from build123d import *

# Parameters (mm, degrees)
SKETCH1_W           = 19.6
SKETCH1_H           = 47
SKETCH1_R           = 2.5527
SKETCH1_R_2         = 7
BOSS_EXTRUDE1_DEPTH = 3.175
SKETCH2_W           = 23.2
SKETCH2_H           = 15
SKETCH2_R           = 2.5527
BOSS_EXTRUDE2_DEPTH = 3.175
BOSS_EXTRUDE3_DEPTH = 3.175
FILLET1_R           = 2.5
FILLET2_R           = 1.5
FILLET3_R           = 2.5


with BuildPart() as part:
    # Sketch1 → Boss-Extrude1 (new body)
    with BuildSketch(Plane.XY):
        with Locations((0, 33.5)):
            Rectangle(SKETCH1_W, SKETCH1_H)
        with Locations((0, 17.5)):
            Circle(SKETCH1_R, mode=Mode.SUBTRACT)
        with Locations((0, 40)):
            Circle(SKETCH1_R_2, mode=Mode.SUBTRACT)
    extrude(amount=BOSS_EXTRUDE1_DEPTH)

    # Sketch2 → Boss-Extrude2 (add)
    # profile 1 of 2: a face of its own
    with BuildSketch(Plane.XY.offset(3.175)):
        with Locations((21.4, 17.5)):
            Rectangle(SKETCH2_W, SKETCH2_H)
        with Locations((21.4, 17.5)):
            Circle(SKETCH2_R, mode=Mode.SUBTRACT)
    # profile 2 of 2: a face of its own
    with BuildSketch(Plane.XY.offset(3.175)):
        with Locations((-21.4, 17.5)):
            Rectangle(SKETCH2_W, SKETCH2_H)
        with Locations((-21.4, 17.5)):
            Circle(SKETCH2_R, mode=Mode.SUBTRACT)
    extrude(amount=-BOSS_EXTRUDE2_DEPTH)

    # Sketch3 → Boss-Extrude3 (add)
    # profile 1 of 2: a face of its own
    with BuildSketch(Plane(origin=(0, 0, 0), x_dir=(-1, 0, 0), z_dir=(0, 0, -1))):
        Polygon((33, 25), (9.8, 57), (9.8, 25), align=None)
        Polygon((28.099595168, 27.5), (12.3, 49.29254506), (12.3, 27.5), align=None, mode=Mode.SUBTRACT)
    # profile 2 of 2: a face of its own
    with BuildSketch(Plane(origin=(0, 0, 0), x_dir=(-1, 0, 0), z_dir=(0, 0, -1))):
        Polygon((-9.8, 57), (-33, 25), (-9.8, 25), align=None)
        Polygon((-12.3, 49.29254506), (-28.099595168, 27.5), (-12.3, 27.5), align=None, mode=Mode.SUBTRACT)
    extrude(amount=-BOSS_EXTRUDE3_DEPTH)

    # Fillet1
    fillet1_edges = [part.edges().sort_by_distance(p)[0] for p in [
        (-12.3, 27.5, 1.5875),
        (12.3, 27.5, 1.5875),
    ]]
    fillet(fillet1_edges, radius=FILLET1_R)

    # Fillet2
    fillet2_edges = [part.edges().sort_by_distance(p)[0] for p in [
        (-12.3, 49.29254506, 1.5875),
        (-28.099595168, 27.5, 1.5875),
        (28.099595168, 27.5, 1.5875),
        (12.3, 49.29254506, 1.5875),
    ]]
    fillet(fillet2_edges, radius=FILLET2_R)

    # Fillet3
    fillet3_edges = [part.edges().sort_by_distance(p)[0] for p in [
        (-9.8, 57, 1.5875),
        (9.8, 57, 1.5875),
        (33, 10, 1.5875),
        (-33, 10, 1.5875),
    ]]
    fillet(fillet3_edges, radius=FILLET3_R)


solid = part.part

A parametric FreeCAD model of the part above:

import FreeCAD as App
import Part
import Sketcher

V = App.Vector


def edges_at(feature, points):
    """Names of the edges that pass closest to the given points."""
    edges = feature.Shape.Edges
    near = lambda p: min(range(len(edges)), key=lambda i: edges[i].distToShape(Part.Vertex(*p))[0])
    return sorted({f"Edge{near(p) + 1}" for p in points})

doc = App.newDocument("Part")
params = doc.addObject("Spreadsheet::Sheet", "Params")
for row, (alias, value) in enumerate([
    ("sketch1_diameter", "14 mm"),
    ("sketch1_height", "47 mm"),
    ("sketch1_width", "19.6 mm"),
    ("pad1_length", "3.175 mm"),
    ("sketch2_height", "15 mm"),
    ("sketch2_width", "23.2 mm"),
    ("pad2_length", "3.175 mm"),
    ("sketch3_height", "32 mm"),
    ("sketch3_width", "23.2 mm"),
    ("pad3_length", "3.175 mm"),
    ("fillet_radius", "2.5 mm"),
    ("fillet2_radius", "1.5 mm"),
    ("fillet3_radius", "2.5 mm"),
], start=1):
    params.set(f"A{row}", alias)
    params.set(f"B{row}", "=" + value)
    params.setAlias(f"B{row}", alias)

body = doc.addObject("PartDesign::Body", "Body")

sketch1 = doc.addObject("Sketcher::SketchObject", "Sketch")
body.addObject(sketch1)
sketch1.AttachmentSupport = (doc.XY_Plane, [""])
sketch1.MapMode = "FlatFace"
sketch1.addGeometry([
    Part.LineSegment(V(-9.8, 57, 0), V(-9.8, 10, 0)),
    Part.LineSegment(V(-9.8, 10, 0), V(9.8, 10, 0)),
    Part.LineSegment(V(9.8, 10, 0), V(9.8, 57, 0)),
    Part.LineSegment(V(9.8, 57, 0), V(-9.8, 57, 0)),
    Part.Circle(V(0, 17.5, 0), V(0, 0, 1), 2.5527),
    Part.Circle(V(0, 40, 0), V(0, 0, 1), 7),
], False)
sketch1.addConstraint([
    Sketcher.Constraint("Coincident", 0, 2, 1, 1),
    Sketcher.Constraint("Coincident", 1, 2, 2, 1),
    Sketcher.Constraint("Coincident", 2, 2, 3, 1),
    Sketcher.Constraint("Coincident", 3, 2, 0, 1),
    Sketcher.Constraint("Vertical", 0),
    Sketcher.Constraint("Horizontal", 1),
    Sketcher.Constraint("Vertical", 2),
    Sketcher.Constraint("Horizontal", 3),
    Sketcher.Constraint("PointOnObject", 4, 3, -2),
    Sketcher.Constraint("PointOnObject", 5, 3, -2),
    Sketcher.Constraint("Diameter", 5, 14.0),
    Sketcher.Constraint("DistanceY", 0, 2, 0, 1, 47.0),
    Sketcher.Constraint("DistanceX", 1, 1, 1, 2, 19.6),
    Sketcher.Constraint("DistanceY", -1, 1, 5, 3, 40.0),
    Sketcher.Constraint("DistanceY", -1, 1, 0, 2, 10.0),
    Sketcher.Constraint("Diameter", 4, 5.1054),
    Sketcher.Constraint("DistanceY", -1, 1, 4, 3, 17.5),
    Sketcher.Constraint("DistanceX", 0, 2, -1, 1, 9.8),
])
sketch1.setExpression("Constraints[10]", "Params.sketch1_diameter")
sketch1.setExpression("Constraints[11]", "Params.sketch1_height")
sketch1.setExpression("Constraints[12]", "Params.sketch1_width")
pad1 = doc.addObject("PartDesign::Pad", "Pad")
body.addObject(pad1)
pad1.Profile = sketch1
pad1.setExpression("Length", "Params.pad1_length")

sketch2 = doc.addObject("Sketcher::SketchObject", "Sketch001")
body.addObject(sketch2)
sketch2.AttachmentSupport = (doc.XY_Plane, [""])
sketch2.MapMode = "FlatFace"
sketch2.AttachmentOffset = App.Placement(V(0, 0, 3.175), App.Rotation())
sketch2.addGeometry([
    Part.LineSegment(V(9.8, 25, 0), V(9.8, 10, 0)),
    Part.LineSegment(V(9.8, 10, 0), V(33, 10, 0)),
    Part.LineSegment(V(33, 10, 0), V(33, 25, 0)),
    Part.LineSegment(V(33, 25, 0), V(9.8, 25, 0)),
    Part.Circle(V(21.4, 17.5, 0), V(0, 0, 1), 2.5527),
    Part.LineSegment(V(-33, 25, 0), V(-33, 10, 0)),
    Part.LineSegment(V(-33, 10, 0), V(-9.8, 10, 0)),
    Part.LineSegment(V(-9.8, 10, 0), V(-9.8, 25, 0)),
    Part.LineSegment(V(-9.8, 25, 0), V(-33, 25, 0)),
    Part.Circle(V(-21.4, 17.5, 0), V(0, 0, 1), 2.5527),
], False)
sketch2.addConstraint([
    Sketcher.Constraint("Coincident", 0, 2, 1, 1),
    Sketcher.Constraint("Coincident", 1, 2, 2, 1),
    Sketcher.Constraint("Coincident", 2, 2, 3, 1),
    Sketcher.Constraint("Coincident", 3, 2, 0, 1),
    Sketcher.Constraint("Coincident", 5, 2, 6, 1),
    Sketcher.Constraint("Coincident", 6, 2, 7, 1),
    Sketcher.Constraint("Coincident", 7, 2, 8, 1),
    Sketcher.Constraint("Coincident", 8, 2, 5, 1),
    Sketcher.Constraint("Vertical", 0),
    Sketcher.Constraint("Horizontal", 1),
    Sketcher.Constraint("Vertical", 2),
    Sketcher.Constraint("Horizontal", 3),
    Sketcher.Constraint("Vertical", 5),
    Sketcher.Constraint("Horizontal", 6),
    Sketcher.Constraint("Vertical", 7),
    Sketcher.Constraint("Horizontal", 8),
    Sketcher.Constraint("Equal", 4, 9),
    Sketcher.Constraint("Symmetric", 4, 3, 9, 3, -2),
    Sketcher.Constraint("Symmetric", 1, 2, 5, 2, -2),
    Sketcher.Constraint("Symmetric", 3, 2, 7, 2, -2),
    Sketcher.Constraint("DistanceY", 0, 2, 0, 1, 15.0),
    Sketcher.Constraint("DistanceX", 1, 1, 1, 2, 23.2),
    Sketcher.Constraint("DistanceY", -1, 1, 0, 2, 10.0),
    Sketcher.Constraint("DistanceX", -1, 1, 1, 2, 33.0),
    Sketcher.Constraint("Diameter", 4, 5.1054),
    Sketcher.Constraint("DistanceX", -1, 1, 4, 3, 21.4),
    Sketcher.Constraint("DistanceY", -1, 1, 4, 3, 17.5),
])
sketch2.setExpression("Constraints[20]", "Params.sketch2_height")
sketch2.setExpression("Constraints[21]", "Params.sketch2_width")
pad2 = doc.addObject("PartDesign::Pad", "Pad001")
body.addObject(pad2)
pad2.Profile = sketch2
pad2.setExpression("Length", "Params.pad2_length")
pad2.Reversed = True

sketch3 = doc.addObject("Sketcher::SketchObject", "Sketch002")
body.addObject(sketch3)
sketch3.AttachmentSupport = (doc.XY_Plane, [""])
sketch3.MapMode = "FlatFace"
sketch3.addGeometry([
    Part.LineSegment(V(-33, 25, 0), V(-9.8, 57, 0)),
    Part.LineSegment(V(-9.8, 57, 0), V(-9.8, 25, 0)),
    Part.LineSegment(V(-9.8, 25, 0), V(-33, 25, 0)),
    Part.LineSegment(V(-12.3, 49.292545, 0), V(-28.099595, 27.5, 0)),
    Part.LineSegment(V(-28.099595, 27.5, 0), V(-12.3, 27.5, 0)),
    Part.LineSegment(V(-12.3, 27.5, 0), V(-12.3, 49.292545, 0)),
    Part.LineSegment(V(9.8, 57, 0), V(33, 25, 0)),
    Part.LineSegment(V(33, 25, 0), V(9.8, 25, 0)),
    Part.LineSegment(V(9.8, 25, 0), V(9.8, 57, 0)),
    Part.LineSegment(V(28.099595, 27.5, 0), V(12.3, 49.292545, 0)),
    Part.LineSegment(V(12.3, 49.292545, 0), V(12.3, 27.5, 0)),
    Part.LineSegment(V(12.3, 27.5, 0), V(28.099595, 27.5, 0)),
], False)
sketch3.addConstraint([
    Sketcher.Constraint("Coincident", 0, 2, 1, 1),
    Sketcher.Constraint("Coincident", 1, 2, 2, 1),
    Sketcher.Constraint("Coincident", 2, 2, 0, 1),
    Sketcher.Constraint("Coincident", 3, 2, 4, 1),
    Sketcher.Constraint("Coincident", 4, 2, 5, 1),
    Sketcher.Constraint("Coincident", 5, 2, 3, 1),
    Sketcher.Constraint("Coincident", 6, 2, 7, 1),
    Sketcher.Constraint("Coincident", 7, 2, 8, 1),
    Sketcher.Constraint("Coincident", 8, 2, 6, 1),
    Sketcher.Constraint("Coincident", 9, 2, 10, 1),
    Sketcher.Constraint("Coincident", 10, 2, 11, 1),
    Sketcher.Constraint("Coincident", 11, 2, 9, 1),
    Sketcher.Constraint("Vertical", 1),
    Sketcher.Constraint("Horizontal", 2),
    Sketcher.Constraint("Horizontal", 4),
    Sketcher.Constraint("Vertical", 5),
    Sketcher.Constraint("Horizontal", 7),
    Sketcher.Constraint("Vertical", 8),
    Sketcher.Constraint("Vertical", 10),
    Sketcher.Constraint("Horizontal", 11),
    Sketcher.Constraint("Symmetric", 2, 2, 6, 2, -2),
    Sketcher.Constraint("Symmetric", 0, 2, 8, 2, -2),
    Sketcher.Constraint("Symmetric", 5, 2, 9, 2, -2),
    Sketcher.Constraint("Symmetric", 3, 2, 11, 2, -2),
    Sketcher.Constraint("Parallel", 0, 3),
    Sketcher.Constraint("DistanceY", 1, 2, 1, 1, 32.0),
    Sketcher.Constraint("DistanceX", 2, 2, 2, 1, 23.2),
    Sketcher.Constraint("DistanceY", -1, 1, 0, 2, 57.0),
    Sketcher.Constraint("DistanceX", 2, 2, -1, 1, 33.0),
    Sketcher.Constraint("DistanceY", -1, 1, 3, 2, 27.5),
    Sketcher.Constraint("DistanceX", 4, 2, -1, 1, 12.3),
    Sketcher.Constraint("DistanceX", 4, 1, 4, 2, 15.799595),
])
sketch3.setExpression("Constraints[25]", "Params.sketch3_height")
sketch3.setExpression("Constraints[26]", "Params.sketch3_width")
pad3 = doc.addObject("PartDesign::Pad", "Pad002")
body.addObject(pad3)
pad3.Profile = sketch3
pad3.setExpression("Length", "Params.pad3_length")
doc.recompute()

fillet = doc.addObject("PartDesign::Fillet", "Fillet")
body.addObject(fillet)
fillet.Base = (pad3, edges_at(pad3, [(-12.3, 27.5, 1.587), (12.3, 27.5, 1.587)]))
fillet.setExpression("Radius", "Params.fillet_radius")
doc.recompute()

fillet2 = doc.addObject("PartDesign::Fillet", "Fillet001")
body.addObject(fillet2)
fillet2.Base = (fillet, edges_at(fillet, [
    (-12.3, 49.293, 1.587),
    (-28.1, 27.5, 1.587),
    (28.1, 27.5, 1.587),
    (12.3, 49.293, 1.587),
]))
fillet2.setExpression("Radius", "Params.fillet2_radius")
doc.recompute()

fillet3 = doc.addObject("PartDesign::Fillet", "Fillet002")
body.addObject(fillet3)
fillet3.Base = (fillet2, edges_at(fillet2, [
    (-9.8, 57, 1.587),
    (9.8, 57, 1.587),
    (33, 10, 1.587),
    (-33, 10, 1.587),
]))
fillet3.setExpression("Radius", "Params.fillet3_radius")

doc.recompute()
